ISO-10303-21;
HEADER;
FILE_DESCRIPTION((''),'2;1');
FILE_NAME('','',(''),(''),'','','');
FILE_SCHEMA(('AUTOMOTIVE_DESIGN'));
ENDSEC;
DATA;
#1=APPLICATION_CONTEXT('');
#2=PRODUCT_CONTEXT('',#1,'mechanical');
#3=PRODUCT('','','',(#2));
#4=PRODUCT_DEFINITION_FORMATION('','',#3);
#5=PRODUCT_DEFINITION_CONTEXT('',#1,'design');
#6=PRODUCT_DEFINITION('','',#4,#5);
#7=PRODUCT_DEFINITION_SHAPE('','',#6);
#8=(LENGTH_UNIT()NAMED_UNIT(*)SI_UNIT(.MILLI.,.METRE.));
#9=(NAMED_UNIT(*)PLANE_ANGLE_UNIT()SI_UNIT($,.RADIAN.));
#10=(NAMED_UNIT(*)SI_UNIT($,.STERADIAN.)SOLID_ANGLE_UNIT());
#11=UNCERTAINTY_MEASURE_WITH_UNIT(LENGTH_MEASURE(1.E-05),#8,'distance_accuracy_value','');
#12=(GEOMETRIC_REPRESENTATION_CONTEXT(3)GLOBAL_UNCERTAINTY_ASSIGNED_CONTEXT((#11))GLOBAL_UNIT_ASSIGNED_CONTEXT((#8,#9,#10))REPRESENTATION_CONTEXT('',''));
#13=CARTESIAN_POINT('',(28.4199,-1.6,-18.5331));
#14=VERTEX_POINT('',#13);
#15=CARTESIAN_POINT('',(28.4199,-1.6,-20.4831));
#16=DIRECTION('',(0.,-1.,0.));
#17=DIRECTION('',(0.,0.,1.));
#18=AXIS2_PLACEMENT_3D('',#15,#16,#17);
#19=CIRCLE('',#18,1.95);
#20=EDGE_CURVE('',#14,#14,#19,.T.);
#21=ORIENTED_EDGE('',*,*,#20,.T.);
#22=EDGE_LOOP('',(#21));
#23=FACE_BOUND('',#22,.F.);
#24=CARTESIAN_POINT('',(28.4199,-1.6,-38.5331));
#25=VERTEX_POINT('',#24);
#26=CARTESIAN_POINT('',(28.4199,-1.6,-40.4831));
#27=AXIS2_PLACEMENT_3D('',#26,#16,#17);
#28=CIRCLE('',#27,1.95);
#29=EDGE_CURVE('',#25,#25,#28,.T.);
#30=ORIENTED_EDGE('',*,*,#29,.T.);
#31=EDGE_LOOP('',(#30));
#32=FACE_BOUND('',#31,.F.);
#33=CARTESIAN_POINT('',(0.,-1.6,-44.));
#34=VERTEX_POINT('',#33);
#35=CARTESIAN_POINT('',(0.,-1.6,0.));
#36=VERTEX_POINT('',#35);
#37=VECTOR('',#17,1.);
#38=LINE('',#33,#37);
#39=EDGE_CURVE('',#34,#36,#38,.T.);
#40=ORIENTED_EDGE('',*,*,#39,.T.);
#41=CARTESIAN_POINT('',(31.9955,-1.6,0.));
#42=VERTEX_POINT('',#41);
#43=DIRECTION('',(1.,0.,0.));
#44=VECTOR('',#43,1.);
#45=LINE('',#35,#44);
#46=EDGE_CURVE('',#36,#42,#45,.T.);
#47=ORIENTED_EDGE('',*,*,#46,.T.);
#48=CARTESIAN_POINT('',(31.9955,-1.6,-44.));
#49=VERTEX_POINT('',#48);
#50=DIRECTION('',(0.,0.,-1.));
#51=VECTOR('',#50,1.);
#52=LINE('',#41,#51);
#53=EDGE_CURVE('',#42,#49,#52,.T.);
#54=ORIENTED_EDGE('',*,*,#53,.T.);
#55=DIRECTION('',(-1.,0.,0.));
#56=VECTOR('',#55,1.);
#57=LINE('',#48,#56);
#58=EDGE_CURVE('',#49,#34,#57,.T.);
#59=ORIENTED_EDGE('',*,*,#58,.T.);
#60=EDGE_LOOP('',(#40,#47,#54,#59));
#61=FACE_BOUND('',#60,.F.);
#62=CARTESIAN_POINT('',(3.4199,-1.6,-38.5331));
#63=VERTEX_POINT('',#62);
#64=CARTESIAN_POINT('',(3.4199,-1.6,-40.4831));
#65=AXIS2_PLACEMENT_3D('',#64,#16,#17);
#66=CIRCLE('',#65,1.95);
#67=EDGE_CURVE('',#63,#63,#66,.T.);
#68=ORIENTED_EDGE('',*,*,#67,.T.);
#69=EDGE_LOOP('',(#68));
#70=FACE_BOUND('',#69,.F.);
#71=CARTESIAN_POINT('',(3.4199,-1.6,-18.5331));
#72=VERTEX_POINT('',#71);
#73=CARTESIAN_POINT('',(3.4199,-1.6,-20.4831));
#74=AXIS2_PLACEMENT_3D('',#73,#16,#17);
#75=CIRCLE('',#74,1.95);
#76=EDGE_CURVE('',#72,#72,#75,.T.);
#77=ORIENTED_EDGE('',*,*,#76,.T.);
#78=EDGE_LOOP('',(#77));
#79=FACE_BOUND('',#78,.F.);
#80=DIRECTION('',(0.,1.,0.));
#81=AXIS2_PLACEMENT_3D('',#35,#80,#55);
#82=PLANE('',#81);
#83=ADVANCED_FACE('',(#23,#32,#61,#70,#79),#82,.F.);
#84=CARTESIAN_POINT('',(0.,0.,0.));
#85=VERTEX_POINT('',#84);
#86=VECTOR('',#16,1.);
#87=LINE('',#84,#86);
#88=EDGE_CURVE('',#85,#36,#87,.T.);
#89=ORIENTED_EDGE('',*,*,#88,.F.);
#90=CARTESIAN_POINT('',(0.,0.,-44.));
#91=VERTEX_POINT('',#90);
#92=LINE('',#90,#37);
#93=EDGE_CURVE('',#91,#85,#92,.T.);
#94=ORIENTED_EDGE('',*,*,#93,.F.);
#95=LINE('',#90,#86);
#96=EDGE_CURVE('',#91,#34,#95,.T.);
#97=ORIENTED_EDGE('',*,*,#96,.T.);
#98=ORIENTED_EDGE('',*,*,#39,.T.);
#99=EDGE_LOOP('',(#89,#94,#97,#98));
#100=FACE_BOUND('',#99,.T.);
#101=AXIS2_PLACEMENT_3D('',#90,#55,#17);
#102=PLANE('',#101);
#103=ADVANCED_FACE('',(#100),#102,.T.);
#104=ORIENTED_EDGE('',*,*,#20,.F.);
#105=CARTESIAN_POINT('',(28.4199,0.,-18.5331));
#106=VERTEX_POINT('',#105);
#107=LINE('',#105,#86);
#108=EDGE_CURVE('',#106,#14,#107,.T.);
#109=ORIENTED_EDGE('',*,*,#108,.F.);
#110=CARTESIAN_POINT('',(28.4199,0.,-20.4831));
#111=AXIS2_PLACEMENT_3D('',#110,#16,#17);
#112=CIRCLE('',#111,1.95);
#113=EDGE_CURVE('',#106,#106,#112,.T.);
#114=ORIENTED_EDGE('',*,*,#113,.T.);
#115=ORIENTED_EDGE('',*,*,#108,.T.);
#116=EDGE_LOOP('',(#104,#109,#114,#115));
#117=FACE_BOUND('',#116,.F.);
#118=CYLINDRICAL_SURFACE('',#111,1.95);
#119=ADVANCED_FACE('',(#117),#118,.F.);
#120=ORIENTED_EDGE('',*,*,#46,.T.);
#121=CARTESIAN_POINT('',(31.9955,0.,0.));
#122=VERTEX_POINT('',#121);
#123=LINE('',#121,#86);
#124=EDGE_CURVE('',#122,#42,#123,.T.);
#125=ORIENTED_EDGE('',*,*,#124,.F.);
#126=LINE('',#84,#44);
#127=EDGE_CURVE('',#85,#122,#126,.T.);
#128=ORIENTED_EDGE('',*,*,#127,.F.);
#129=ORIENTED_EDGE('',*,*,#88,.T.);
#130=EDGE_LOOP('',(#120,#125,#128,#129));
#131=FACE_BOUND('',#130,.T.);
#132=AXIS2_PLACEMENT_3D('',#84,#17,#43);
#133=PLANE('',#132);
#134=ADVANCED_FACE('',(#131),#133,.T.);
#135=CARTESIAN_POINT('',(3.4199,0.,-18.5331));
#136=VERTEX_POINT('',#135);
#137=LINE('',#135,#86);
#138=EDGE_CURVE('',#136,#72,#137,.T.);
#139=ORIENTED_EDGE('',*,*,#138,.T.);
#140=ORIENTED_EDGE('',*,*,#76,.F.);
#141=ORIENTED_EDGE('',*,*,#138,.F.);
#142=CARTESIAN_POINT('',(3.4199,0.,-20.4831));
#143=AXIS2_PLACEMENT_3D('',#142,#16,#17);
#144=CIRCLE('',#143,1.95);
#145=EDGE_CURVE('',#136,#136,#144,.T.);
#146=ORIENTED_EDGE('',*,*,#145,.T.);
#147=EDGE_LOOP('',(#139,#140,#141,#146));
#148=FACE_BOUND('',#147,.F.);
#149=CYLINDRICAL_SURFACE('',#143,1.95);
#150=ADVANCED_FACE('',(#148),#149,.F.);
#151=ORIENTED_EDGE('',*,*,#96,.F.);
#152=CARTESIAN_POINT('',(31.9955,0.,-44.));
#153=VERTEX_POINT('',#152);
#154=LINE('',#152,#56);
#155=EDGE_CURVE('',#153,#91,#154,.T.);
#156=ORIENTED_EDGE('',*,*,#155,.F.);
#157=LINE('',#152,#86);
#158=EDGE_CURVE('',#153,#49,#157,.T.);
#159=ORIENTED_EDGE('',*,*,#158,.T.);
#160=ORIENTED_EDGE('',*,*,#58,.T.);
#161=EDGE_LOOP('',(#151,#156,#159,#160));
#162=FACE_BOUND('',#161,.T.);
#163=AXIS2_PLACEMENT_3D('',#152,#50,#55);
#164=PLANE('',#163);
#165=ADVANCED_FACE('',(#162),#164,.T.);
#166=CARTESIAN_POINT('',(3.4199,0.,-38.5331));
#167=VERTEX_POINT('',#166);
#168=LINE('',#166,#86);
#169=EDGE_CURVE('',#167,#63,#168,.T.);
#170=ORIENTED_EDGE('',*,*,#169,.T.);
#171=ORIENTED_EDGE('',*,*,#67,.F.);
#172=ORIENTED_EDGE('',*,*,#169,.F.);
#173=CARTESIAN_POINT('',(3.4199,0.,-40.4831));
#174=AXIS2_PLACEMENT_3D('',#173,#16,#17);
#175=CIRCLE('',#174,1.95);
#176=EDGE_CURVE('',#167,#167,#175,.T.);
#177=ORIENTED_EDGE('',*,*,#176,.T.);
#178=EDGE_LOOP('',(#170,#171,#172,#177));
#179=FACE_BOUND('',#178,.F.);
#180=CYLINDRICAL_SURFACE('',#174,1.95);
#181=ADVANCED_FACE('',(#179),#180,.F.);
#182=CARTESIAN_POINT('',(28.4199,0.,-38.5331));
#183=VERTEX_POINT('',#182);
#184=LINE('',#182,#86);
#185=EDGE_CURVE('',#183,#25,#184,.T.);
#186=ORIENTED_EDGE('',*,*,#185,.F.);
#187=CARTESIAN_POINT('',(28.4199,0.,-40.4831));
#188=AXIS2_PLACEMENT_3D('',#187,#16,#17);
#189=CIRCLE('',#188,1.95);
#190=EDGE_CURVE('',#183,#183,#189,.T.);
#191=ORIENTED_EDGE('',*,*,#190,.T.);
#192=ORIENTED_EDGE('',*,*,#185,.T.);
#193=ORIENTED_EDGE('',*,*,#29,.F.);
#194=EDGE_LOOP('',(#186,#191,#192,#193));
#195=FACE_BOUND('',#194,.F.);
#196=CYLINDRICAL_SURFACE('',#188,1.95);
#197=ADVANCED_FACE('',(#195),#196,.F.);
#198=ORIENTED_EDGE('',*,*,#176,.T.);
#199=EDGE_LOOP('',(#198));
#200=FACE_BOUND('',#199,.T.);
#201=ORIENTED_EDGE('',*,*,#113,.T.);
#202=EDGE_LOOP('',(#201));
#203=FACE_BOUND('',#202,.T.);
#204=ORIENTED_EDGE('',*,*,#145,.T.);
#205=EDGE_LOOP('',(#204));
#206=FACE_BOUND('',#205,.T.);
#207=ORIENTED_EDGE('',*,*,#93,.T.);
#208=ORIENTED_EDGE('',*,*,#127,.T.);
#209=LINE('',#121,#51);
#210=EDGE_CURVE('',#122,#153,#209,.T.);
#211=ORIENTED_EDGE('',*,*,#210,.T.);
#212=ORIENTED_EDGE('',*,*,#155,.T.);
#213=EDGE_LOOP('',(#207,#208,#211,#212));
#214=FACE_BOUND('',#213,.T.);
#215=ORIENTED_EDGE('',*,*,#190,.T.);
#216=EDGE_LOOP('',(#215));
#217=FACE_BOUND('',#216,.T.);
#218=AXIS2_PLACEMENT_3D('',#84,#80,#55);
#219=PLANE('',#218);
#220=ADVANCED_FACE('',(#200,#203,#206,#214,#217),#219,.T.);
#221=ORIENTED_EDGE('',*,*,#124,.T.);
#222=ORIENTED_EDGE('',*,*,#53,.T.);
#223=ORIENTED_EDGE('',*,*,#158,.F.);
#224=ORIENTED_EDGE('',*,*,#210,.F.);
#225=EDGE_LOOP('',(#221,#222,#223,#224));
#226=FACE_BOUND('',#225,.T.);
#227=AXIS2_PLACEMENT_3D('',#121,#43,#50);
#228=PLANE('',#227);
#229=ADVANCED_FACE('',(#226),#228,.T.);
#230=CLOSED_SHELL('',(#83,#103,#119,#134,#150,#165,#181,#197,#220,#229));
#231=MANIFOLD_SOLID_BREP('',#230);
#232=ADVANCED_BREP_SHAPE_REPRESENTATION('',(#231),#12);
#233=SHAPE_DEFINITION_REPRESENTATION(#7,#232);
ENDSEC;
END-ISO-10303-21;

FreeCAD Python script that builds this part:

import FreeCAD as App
import Part
import Sketcher
Q = App.Units.Quantity

doc = App.newDocument("Part")
body = doc.addObject("PartDesign::Body", "Body")

# Sketch on XZ plane
sketch1 = body.newObject("Sketcher::SketchObject", "Sketch")
sketch1.AttachmentSupport = (doc.getObject("XZ_Plane"), [""])
sketch1.MapMode = "FlatFace"
sketch1.addGeometry(Part.LineSegment(App.Vector(0, -44, 0), App.Vector(0, 0, 0)), False)
sketch1.addGeometry(Part.LineSegment(App.Vector(0, 0, 0), App.Vector(32, 0, 0)), False)
sketch1.addGeometry(Part.LineSegment(App.Vector(32, 0, 0), App.Vector(32, -44, 0)), False)
sketch1.addGeometry(Part.LineSegment(App.Vector(32, -44, 0), App.Vector(0, -44, 0)), False)
sketch1.addConstraint(Sketcher.Constraint("Coincident", 0, 2, 1, 1))
sketch1.addConstraint(Sketcher.Constraint("Coincident", 1, 2, 2, 1))
sketch1.addConstraint(Sketcher.Constraint("Coincident", 2, 2, 3, 1))
sketch1.addConstraint(Sketcher.Constraint("Coincident", 3, 2, 0, 1))
sketch1.addConstraint(Sketcher.Constraint("Vertical", 0))
sketch1.addConstraint(Sketcher.Constraint("Horizontal", 1))
sketch1.addConstraint(Sketcher.Constraint("Vertical", 2))
sketch1.addConstraint(Sketcher.Constraint("Horizontal", 3))
sketch1.addConstraint(Sketcher.Constraint("Coincident", 0, 2, -1, 1))
sketch1.addConstraint(Sketcher.Constraint("DistanceY", 0, 1, 0, 2, Q("44 mm")))
sketch1.addConstraint(Sketcher.Constraint("DistanceX", 1, 1, 1, 2, Q("31.9955 mm")))
pad1 = body.newObject("PartDesign::Pad", "Pad")
pad1.Profile = sketch1
pad1.Length = 1.6

# Sketch on XZ plane
sketch2 = body.newObject("Sketcher::SketchObject", "Sketch001")
sketch2.AttachmentSupport = (doc.getObject("XZ_Plane"), [""])
sketch2.MapMode = "FlatFace"
sketch2.addGeometry(Part.Circle(App.Vector(3.4, -40.5, 0), App.Vector(0, 0, 1), 1.9), False)
sketch2.addGeometry(Part.Circle(App.Vector(3.4, -20.5, 0), App.Vector(0, 0, 1), 1.9), False)
sketch2.addGeometry(Part.Circle(App.Vector(28.4, -20.5, 0), App.Vector(0, 0, 1), 1.9), False)
sketch2.addGeometry(Part.Circle(App.Vector(28.4, -40.5, 0), App.Vector(0, 0, 1), 1.9), False)
sketch2.addConstraint(Sketcher.Constraint("Equal", 0, 1))
sketch2.addConstraint(Sketcher.Constraint("Equal", 1, 2))
sketch2.addConstraint(Sketcher.Constraint("Equal", 2, 3))
sketch2.addConstraint(Sketcher.Constraint("Horizontal", 1, 3, 2, 3))
sketch2.addConstraint(Sketcher.Constraint("Horizontal", 0, 3, 3, 3))
sketch2.addConstraint(Sketcher.Constraint("Vertical", 0, 3, 1, 3))
sketch2.addConstraint(Sketcher.Constraint("Vertical", 2, 3, 3, 3))
sketch2.addConstraint(Sketcher.Constraint("Diameter", 0, Q("3.9 mm")))
sketch2.addConstraint(Sketcher.Constraint("DistanceY", 0, 3, 1, 3, Q("20 mm")))
sketch2.addConstraint(Sketcher.Constraint("DistanceX", 1, 3, 2, 3, Q("25 mm")))
sketch2.addConstraint(Sketcher.Constraint("DistanceX", -1, 1, 0, 3, Q("3.42 mm")))
sketch2.addConstraint(Sketcher.Constraint("DistanceY", 0, 3, -1, 1, Q("40.483 mm")))
doc.recompute()
hole = body.newObject("PartDesign::Hole", "Hole")
hole.Profile = sketch2
hole.ThreadType = "None"
hole.Diameter = 3.9
hole.DepthType = "Dimension"
hole.Depth = 3
hole.DrillPoint = "Flat"
hole.Reversed = True

doc.recompute()
